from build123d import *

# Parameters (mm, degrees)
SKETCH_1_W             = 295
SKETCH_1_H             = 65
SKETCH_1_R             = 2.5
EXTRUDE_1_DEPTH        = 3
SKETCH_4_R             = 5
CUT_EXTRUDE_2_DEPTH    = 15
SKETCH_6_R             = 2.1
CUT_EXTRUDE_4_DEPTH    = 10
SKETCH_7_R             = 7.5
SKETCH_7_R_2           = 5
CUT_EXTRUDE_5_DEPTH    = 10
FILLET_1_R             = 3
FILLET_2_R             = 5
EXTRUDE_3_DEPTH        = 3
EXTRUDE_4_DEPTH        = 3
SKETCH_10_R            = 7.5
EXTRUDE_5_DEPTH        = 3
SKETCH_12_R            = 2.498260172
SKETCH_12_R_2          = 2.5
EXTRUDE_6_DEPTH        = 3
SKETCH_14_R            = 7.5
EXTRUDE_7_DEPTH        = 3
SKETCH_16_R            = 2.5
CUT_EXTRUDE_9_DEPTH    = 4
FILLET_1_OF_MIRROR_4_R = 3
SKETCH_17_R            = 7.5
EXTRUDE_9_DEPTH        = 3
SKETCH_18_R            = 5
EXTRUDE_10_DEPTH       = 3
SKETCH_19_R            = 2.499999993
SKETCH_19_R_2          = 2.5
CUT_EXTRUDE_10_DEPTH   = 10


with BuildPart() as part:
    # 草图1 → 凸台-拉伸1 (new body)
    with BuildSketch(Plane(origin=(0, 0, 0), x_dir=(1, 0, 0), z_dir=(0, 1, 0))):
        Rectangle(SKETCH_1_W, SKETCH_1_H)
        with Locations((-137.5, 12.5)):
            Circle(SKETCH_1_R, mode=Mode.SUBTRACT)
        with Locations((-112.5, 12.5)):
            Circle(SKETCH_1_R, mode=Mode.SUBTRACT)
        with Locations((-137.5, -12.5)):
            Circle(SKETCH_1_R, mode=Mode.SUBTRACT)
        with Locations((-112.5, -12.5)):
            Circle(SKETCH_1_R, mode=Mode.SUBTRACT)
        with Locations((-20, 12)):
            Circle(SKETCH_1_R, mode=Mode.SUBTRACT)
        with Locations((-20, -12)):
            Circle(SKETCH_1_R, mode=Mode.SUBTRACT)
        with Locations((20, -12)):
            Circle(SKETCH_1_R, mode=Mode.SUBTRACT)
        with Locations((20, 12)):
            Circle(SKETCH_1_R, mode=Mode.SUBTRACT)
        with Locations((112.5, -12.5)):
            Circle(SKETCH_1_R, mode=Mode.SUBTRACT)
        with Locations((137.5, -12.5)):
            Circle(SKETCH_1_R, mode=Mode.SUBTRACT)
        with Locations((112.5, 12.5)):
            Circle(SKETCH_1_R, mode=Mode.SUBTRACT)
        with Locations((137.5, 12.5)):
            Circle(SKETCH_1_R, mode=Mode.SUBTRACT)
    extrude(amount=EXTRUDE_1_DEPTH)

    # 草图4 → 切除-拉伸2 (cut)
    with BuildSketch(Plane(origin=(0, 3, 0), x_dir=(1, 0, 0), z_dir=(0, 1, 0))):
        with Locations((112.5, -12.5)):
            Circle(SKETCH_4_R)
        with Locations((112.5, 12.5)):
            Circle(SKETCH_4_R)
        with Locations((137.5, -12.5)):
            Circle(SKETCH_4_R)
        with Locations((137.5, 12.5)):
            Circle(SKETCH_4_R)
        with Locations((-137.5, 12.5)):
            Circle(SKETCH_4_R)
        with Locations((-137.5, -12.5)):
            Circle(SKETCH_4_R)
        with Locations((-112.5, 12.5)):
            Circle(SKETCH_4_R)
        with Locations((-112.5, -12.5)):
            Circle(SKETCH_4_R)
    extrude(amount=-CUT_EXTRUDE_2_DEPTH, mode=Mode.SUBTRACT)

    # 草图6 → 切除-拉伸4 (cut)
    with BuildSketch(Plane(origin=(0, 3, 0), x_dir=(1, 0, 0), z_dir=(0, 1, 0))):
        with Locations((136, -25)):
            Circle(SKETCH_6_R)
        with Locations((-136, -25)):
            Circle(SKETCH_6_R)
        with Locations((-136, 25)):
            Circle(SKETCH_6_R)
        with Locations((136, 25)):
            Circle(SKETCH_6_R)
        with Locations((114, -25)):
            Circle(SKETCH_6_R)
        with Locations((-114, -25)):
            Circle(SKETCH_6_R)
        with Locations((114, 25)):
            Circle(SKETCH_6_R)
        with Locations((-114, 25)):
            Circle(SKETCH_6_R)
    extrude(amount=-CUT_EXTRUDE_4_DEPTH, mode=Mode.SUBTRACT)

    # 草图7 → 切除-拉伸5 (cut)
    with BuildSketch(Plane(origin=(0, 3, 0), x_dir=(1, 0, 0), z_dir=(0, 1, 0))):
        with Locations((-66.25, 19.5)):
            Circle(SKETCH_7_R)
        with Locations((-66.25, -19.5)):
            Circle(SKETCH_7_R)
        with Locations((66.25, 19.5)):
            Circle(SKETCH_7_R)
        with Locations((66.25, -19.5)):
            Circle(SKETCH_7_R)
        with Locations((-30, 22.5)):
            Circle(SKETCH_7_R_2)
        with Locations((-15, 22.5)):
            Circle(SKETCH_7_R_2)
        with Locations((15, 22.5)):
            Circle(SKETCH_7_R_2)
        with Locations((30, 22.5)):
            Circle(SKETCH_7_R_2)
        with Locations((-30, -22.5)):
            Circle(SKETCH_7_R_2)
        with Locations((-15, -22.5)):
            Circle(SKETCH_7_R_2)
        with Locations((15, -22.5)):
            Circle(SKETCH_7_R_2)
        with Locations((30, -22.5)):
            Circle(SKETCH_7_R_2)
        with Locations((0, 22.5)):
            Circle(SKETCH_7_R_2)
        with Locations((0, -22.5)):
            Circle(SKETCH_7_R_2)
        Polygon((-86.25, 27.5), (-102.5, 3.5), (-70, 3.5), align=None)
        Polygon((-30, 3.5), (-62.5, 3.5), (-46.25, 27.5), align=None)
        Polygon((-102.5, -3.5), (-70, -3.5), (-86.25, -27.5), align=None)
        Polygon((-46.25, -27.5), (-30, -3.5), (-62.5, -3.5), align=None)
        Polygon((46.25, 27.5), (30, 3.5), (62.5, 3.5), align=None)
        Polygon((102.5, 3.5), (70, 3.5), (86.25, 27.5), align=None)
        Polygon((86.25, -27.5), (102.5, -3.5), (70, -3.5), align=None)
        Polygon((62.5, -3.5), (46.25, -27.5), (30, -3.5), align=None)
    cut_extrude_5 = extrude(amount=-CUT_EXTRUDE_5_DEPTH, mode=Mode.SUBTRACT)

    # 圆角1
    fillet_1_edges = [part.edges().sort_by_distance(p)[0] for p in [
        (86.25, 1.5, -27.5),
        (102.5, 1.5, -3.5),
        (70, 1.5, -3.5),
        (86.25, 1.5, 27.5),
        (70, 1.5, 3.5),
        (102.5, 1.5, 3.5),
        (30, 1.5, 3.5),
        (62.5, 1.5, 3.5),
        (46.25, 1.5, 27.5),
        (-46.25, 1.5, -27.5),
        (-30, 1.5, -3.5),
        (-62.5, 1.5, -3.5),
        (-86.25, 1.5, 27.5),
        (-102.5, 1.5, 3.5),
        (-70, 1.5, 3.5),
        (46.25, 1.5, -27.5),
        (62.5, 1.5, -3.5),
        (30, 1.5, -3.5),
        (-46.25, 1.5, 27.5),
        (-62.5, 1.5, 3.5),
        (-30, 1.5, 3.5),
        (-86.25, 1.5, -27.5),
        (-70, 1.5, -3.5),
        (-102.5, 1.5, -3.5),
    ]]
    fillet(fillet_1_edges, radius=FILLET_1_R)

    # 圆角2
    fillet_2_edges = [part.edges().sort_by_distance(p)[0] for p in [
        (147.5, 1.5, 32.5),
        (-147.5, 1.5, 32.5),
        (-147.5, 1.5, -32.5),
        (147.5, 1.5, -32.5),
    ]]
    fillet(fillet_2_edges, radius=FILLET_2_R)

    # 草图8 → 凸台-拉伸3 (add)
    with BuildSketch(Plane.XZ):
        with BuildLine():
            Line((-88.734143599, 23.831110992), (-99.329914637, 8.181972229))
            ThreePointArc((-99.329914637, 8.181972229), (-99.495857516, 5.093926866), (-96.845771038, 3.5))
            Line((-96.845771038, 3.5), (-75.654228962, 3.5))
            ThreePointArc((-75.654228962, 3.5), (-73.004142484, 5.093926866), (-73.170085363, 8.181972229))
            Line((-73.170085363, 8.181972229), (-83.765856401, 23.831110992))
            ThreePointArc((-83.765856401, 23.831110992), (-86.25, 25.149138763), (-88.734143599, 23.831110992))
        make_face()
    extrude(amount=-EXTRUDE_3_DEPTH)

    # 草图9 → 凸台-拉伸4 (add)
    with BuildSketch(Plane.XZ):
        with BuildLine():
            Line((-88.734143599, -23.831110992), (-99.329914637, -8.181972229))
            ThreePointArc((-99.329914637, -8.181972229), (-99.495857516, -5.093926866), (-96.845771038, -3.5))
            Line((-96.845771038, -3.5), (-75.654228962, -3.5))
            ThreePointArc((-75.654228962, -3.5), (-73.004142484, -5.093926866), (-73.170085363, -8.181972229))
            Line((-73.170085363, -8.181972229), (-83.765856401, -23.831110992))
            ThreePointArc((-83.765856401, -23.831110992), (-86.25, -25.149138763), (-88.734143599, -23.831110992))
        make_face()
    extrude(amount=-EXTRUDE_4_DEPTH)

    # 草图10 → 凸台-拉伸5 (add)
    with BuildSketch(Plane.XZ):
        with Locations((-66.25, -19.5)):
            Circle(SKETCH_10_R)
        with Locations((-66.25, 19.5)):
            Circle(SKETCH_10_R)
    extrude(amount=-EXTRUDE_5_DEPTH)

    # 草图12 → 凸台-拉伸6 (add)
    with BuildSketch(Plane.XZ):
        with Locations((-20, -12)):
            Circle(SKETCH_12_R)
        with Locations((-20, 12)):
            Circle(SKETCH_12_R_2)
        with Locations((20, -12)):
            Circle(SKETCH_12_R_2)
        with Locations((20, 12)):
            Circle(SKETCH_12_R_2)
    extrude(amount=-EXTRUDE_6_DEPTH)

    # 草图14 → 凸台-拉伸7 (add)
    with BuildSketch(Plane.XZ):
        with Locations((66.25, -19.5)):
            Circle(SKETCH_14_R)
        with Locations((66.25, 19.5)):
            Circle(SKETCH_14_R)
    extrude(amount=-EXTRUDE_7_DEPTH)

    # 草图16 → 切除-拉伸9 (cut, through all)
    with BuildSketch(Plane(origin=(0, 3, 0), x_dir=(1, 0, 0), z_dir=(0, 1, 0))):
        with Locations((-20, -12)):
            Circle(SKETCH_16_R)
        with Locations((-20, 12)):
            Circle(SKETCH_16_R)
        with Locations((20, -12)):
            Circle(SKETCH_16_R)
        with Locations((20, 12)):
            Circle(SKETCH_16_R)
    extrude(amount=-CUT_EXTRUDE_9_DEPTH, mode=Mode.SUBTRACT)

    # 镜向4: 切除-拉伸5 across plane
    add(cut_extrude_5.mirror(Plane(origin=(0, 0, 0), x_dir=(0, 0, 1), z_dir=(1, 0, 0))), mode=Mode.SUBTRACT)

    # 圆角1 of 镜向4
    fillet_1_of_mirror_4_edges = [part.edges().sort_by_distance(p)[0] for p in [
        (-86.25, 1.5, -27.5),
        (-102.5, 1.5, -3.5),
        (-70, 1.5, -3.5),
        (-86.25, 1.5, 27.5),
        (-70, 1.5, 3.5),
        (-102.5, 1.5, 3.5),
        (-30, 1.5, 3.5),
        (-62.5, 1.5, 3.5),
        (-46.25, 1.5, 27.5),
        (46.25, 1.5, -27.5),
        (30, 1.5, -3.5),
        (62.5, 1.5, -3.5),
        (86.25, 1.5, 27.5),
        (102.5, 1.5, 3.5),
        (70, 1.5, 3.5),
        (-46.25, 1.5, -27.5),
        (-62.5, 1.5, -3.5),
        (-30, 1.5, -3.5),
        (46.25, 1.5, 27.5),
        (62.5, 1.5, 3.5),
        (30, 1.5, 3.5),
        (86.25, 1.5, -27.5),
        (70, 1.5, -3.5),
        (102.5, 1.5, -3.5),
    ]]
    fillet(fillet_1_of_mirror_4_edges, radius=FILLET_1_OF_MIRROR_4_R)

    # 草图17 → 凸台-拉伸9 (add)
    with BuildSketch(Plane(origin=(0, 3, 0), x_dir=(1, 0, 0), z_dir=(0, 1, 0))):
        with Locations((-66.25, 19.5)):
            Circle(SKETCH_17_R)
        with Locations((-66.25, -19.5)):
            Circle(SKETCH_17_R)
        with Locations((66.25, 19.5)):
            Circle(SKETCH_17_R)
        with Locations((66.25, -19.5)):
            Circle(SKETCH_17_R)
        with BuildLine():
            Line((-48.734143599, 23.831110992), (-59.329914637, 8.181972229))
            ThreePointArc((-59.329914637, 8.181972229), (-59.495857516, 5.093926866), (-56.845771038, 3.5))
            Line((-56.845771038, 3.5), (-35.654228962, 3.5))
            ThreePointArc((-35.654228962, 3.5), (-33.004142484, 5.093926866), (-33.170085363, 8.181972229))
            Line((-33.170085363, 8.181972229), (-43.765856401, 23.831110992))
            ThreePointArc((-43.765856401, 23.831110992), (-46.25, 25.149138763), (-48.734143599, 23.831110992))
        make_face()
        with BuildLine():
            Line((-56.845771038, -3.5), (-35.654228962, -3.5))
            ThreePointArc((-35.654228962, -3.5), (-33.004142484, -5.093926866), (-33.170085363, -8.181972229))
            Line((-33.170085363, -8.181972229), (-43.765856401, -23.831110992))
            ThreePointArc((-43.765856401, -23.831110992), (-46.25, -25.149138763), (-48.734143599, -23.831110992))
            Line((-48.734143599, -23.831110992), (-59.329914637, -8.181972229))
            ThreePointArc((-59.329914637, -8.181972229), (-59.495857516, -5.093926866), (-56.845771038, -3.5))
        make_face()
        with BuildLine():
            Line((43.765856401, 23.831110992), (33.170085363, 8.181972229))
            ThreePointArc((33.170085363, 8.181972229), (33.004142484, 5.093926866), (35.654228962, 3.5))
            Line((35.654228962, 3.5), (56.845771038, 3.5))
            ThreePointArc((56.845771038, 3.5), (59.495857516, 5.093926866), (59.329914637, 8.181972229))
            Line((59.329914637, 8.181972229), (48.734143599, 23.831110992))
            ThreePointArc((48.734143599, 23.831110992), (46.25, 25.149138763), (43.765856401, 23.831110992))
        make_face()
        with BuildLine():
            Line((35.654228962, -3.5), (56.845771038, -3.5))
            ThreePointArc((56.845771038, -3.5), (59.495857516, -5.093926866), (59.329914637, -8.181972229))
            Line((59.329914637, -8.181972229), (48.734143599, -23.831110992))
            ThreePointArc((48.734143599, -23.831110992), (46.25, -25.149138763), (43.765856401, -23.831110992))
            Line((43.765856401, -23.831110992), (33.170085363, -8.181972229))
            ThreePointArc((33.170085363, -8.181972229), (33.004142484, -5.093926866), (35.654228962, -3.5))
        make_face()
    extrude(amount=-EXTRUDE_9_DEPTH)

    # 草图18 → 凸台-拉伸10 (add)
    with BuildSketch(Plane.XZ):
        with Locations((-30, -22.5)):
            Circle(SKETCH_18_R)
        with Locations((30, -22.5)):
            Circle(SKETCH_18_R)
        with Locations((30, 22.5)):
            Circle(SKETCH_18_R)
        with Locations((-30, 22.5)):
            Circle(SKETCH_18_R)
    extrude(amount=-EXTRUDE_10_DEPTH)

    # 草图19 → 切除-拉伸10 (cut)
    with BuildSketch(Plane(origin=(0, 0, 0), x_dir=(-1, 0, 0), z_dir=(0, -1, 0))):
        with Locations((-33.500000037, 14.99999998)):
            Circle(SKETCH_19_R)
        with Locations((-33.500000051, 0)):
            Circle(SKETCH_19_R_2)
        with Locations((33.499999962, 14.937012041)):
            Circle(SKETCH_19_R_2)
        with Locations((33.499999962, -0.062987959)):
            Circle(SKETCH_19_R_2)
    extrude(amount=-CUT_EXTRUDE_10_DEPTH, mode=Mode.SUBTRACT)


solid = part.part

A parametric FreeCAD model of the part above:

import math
import FreeCAD as App
import Part
import Sketcher

V = App.Vector


def edges_at(feature, points):
    """Names of the edges that pass closest to the given points."""
    edges = feature.Shape.Edges
    near = lambda p: min(range(len(edges)), key=lambda i: edges[i].distToShape(Part.Vertex(*p))[0])
    return sorted({f"Edge{near(p) + 1}" for p in points})


def add_polygon(sketch, points):
    """Adds a closed chain of lines whose ends are joined by coincident constraints."""
    first, n = sketch.GeometryCount, len(points)
    for a, b in zip(points, points[1:] + points[:1]):
        sketch.addGeometry(Part.LineSegment(App.Vector(*a, 0), App.Vector(*b, 0)), False)
    for i in range(n):
        sketch.addConstraint(Sketcher.Constraint("Coincident", first + i, 2, first + (i + 1) % n, 1))

doc = App.newDocument("Part")
body = doc.addObject("PartDesign::Body", "Body")
body.AllowCompound = True

sketch1 = doc.addObject("Sketcher::SketchObject", "Sketch")
body.addObject(sketch1)
sketch1.AttachmentSupport = (doc.XZ_Plane, [""])
sketch1.MapMode = "FlatFace"
add_polygon(sketch1, [(-147.5, -32.5), (-147.5, 32.5), (147.5, 32.5), (147.5, -32.5)])
sketch1.addGeometry(Part.Circle(V(-137.5, 12.5, 0), V(0, 0, 1), 2.5), False)
sketch1.addGeometry(Part.Circle(V(-112.5, 12.5, 0), V(0, 0, 1), 2.5), False)
sketch1.addGeometry(Part.Circle(V(-20, 12, 0), V(0, 0, 1), 2.5), False)
sketch1.addGeometry(Part.Circle(V(20, 12, 0), V(0, 0, 1), 2.5), False)
sketch1.addGeometry(Part.Circle(V(112.5, 12.5, 0), V(0, 0, 1), 2.5), False)
sketch1.addGeometry(Part.Circle(V(137.5, 12.5, 0), V(0, 0, 1), 2.5), False)
sketch1.addGeometry(Part.Circle(V(-137.5, -12.5, 0), V(0, 0, 1), 2.5), False)
sketch1.addGeometry(Part.Circle(V(-112.5, -12.5, 0), V(0, 0, 1), 2.5), False)
sketch1.addGeometry(Part.Circle(V(-20, -12, 0), V(0, 0, 1), 2.5), False)
sketch1.addGeometry(Part.Circle(V(20, -12, 0), V(0, 0, 1), 2.5), False)
sketch1.addGeometry(Part.Circle(V(112.5, -12.5, 0), V(0, 0, 1), 2.5), False)
sketch1.addGeometry(Part.Circle(V(137.5, -12.5, 0), V(0, 0, 1), 2.5), False)
sketch1.addConstraint([
    Sketcher.Constraint("Vertical", 0),
    Sketcher.Constraint("Horizontal", 1),
    Sketcher.Constraint("Vertical", 2),
    Sketcher.Constraint("Horizontal", 3),
    Sketcher.Constraint("Equal", 4, 5),
    Sketcher.Constraint("Equal", 5, 6),
    Sketcher.Constraint("Equal", 6, 7),
    Sketcher.Constraint("Equal", 7, 8),
    Sketcher.Constraint("Equal", 8, 9),
    Sketcher.Constraint("Equal", 9, 10),
    Sketcher.Constraint("Equal", 10, 11),
    Sketcher.Constraint("Equal", 11, 12),
    Sketcher.Constraint("Equal", 12, 13),
    Sketcher.Constraint("Equal", 13, 14),
    Sketcher.Constraint("Equal", 14, 15),
    Sketcher.Constraint("Symmetric", 9, 3, 10, 3, -1, 1),
    Sketcher.Constraint("Symmetric", 8, 3, 11, 3, -1, 1),
    Sketcher.Constraint("Symmetric", 7, 3, 12, 3, -1, 1),
    Sketcher.Constraint("Symmetric", 6, 3, 13, 3, -1, 1),
    Sketcher.Constraint("Symmetric", 5, 3, 14, 3, -1, 1),
    Sketcher.Constraint("Symmetric", 4, 3, 15, 3, -1, 1),
    Sketcher.Constraint("Symmetric", 0, 2, 2, 2, -1, 1),
    Sketcher.Constraint("Symmetric", 6, 3, 7, 3, -2),
    Sketcher.Constraint("Symmetric", 5, 3, 8, 3, -2),
    Sketcher.Constraint("Symmetric", 4, 3, 9, 3, -2),
    Sketcher.Constraint("Horizontal", 4, 3, 5, 3),
    Sketcher.Constraint("Diameter", 4, 5.0),
    Sketcher.Constraint("DistanceX", 1, 1, 1, 2, 295.0),
    Sketcher.Constraint("DistanceY", 0, 1, 0, 2, 65.0),
    Sketcher.Constraint("DistanceX", 6, 3, -1, 1, 20.0),
    Sketcher.Constraint("DistanceY", -1, 1, 6, 3, 12.0),
    Sketcher.Constraint("DistanceX", 4, 3, 5, 3, 25.0),
    Sketcher.Constraint("DistanceX", 5, 3, 8, 3, 225.0),
    Sketcher.Constraint("DistanceY", 10, 3, 4, 3, 25.0),
])
pad1 = doc.addObject("PartDesign::Pad", "Pad")
body.addObject(pad1)
pad1.Profile = sketch1
pad1.Length = 3
pad1.Reversed = True

sketch2 = doc.addObject("Sketcher::SketchObject", "Sketch001")
body.addObject(sketch2)
sketch2.AttachmentSupport = (doc.XZ_Plane, [""])
sketch2.MapMode = "FlatFace"
sketch2.AttachmentOffset = App.Placement(V(0, 0, -3), App.Rotation())
sketch2.addGeometry([
    Part.Circle(V(112, 12, 0), V(0, 0, 1), 5),
    Part.Circle(V(112, -12, 0), V(0, 0, 1), 5),
    Part.Circle(V(138, 12, 0), V(0, 0, 1), 5),
    Part.Circle(V(138, -12, 0), V(0, 0, 1), 5),
    Part.Circle(V(-138, -12, 0), V(0, 0, 1), 5),
    Part.Circle(V(-138, 12, 0), V(0, 0, 1), 5),
    Part.Circle(V(-112, -12, 0), V(0, 0, 1), 5),
    Part.Circle(V(-112, 12, 0), V(0, 0, 1), 5),
], False)
sketch2.addConstraint([
    Sketcher.Constraint("Equal", 0, 1),
    Sketcher.Constraint("Equal", 1, 2),
    Sketcher.Constraint("Equal", 2, 3),
    Sketcher.Constraint("Equal", 3, 4),
    Sketcher.Constraint("Equal", 4, 5),
    Sketcher.Constraint("Equal", 5, 6),
    Sketcher.Constraint("Equal", 6, 7),
    Sketcher.Constraint("Symmetric", 2, 3, 4, 3, -1, 1),
    Sketcher.Constraint("Symmetric", 3, 3, 5, 3, -1, 1),
    Sketcher.Constraint("Symmetric", 0, 3, 6, 3, -1, 1),
    Sketcher.Constraint("Symmetric", 1, 3, 7, 3, -1, 1),
    Sketcher.Constraint("Symmetric", 3, 3, 4, 3, -2),
    Sketcher.Constraint("Symmetric", 1, 3, 6, 3, -2),
    Sketcher.Constraint("Horizontal", 0, 3, 2, 3),
    Sketcher.Constraint("Diameter", 0, 10.0),
    Sketcher.Constraint("DistanceY", 1, 3, 0, 3, 25.0),
    Sketcher.Constraint("DistanceX", 0, 3, 2, 3, 25.0),
    Sketcher.Constraint("DistanceX", 4, 3, 1, 3, 250.0),
])
pocket1 = doc.addObject("PartDesign::Pocket", "Pocket")
body.addObject(pocket1)
pocket1.Profile = sketch2
pocket1.Length = 15
pocket1.Reversed = True

sketch3 = doc.addObject("Sketcher::SketchObject", "Sketch002")
body.addObject(sketch3)
sketch3.AttachmentSupport = (doc.XZ_Plane, [""])
sketch3.MapMode = "FlatFace"
sketch3.AttachmentOffset = App.Placement(V(0, 0, -3), App.Rotation())
sketch3.addGeometry([
    Part.Circle(V(136, 25, 0), V(0, 0, 1), 2.1),
    Part.Circle(V(-136, 25, 0), V(0, 0, 1), 2.1),
    Part.Circle(V(-136, -25, 0), V(0, 0, 1), 2.1),
    Part.Circle(V(136, -25, 0), V(0, 0, 1), 2.1),
    Part.Circle(V(114, 25, 0), V(0, 0, 1), 2.1),
    Part.Circle(V(-114, 25, 0), V(0, 0, 1), 2.1),
    Part.Circle(V(114, -25, 0), V(0, 0, 1), 2.1),
    Part.Circle(V(-114, -25, 0), V(0, 0, 1), 2.1),
], False)
sketch3.addConstraint([
    Sketcher.Constraint("Equal", 0, 1),
    Sketcher.Constraint("Equal", 1, 2),
    Sketcher.Constraint("Equal", 2, 3),
    Sketcher.Constraint("Equal", 3, 4),
    Sketcher.Constraint("Equal", 4, 5),
    Sketcher.Constraint("Equal", 5, 6),
    Sketcher.Constraint("Equal", 6, 7),
    Sketcher.Constraint("Symmetric", 0, 3, 2, 3, -1, 1),
    Sketcher.Constraint("Symmetric", 1, 3, 3, 3, -1, 1),
    Sketcher.Constraint("Symmetric", 5, 3, 6, 3, -1, 1),
    Sketcher.Constraint("Symmetric", 4, 3, 7, 3, -1, 1),
    Sketcher.Constraint("Symmetric", 0, 3, 1, 3, -2),
    Sketcher.Constraint("Symmetric", 4, 3, 5, 3, -2),
    Sketcher.Constraint("Horizontal", 1, 3, 4, 3),
    Sketcher.Constraint("Diameter", 0, 4.2),
    Sketcher.Constraint("DistanceX", -1, 1, 0, 3, 136.0),
    Sketcher.Constraint("DistanceY", -1, 1, 0, 3, 25.0),
    Sketcher.Constraint("DistanceX", -1, 1, 4, 3, 114.0),
])
pocket2 = doc.addObject("PartDesign::Pocket", "Pocket001")
body.addObject(pocket2)
pocket2.Profile = sketch3
pocket2.Length = 10
pocket2.Reversed = True

sketch4 = doc.addObject("Sketcher::SketchObject", "Sketch003")
body.addObject(sketch4)
sketch4.AttachmentSupport = (doc.XZ_Plane, [""])
sketch4.MapMode = "FlatFace"
sketch4.AttachmentOffset = App.Placement(V(0, 0, -3), App.Rotation())
sketch4.addGeometry(Part.Circle(V(-66, -20, 0), V(0, 0, 1), 8), False)
sketch4.addGeometry(Part.Circle(V(-66, 20, 0), V(0, 0, 1), 8), False)
sketch4.addGeometry(Part.Circle(V(66, -20, 0), V(0, 0, 1), 8), False)
sketch4.addGeometry(Part.Circle(V(66, 20, 0), V(0, 0, 1), 8), False)
sketch4.addGeometry(Part.Circle(V(-30, -22, 0), V(0, 0, 1), 5), False)
sketch4.addGeometry(Part.Circle(V(-15, -22, 0), V(0, 0, 1), 5), False)
sketch4.addGeometry(Part.Circle(V(15, -22, 0), V(0, 0, 1), 5), False)
sketch4.addGeometry(Part.Circle(V(30, -22, 0), V(0, 0, 1), 5), False)
sketch4.addGeometry(Part.Circle(V(-30, 22, 0), V(0, 0, 1), 5), False)
sketch4.addGeometry(Part.Circle(V(-15, 22, 0), V(0, 0, 1), 5), False)
sketch4.addGeometry(Part.Circle(V(15, 22, 0), V(0, 0, 1), 5), False)
sketch4.addGeometry(Part.Circle(V(30, 22, 0), V(0, 0, 1), 5), False)
sketch4.addGeometry(Part.Circle(V(0, -22, 0), V(0, 0, 1), 5), False)
sketch4.addGeometry(Part.Circle(V(0, 22, 0), V(0, 0, 1), 5), False)
add_polygon(sketch4, [(-86, -28), (-102, -4), (-70, -4)])
add_polygon(sketch4, [(-62, -4), (-30, -4), (-46, -28)])
add_polygon(sketch4, [(-70, 4), (-102, 4), (-86, 28)])
add_polygon(sketch4, [(-46, 28), (-30, 4), (-62, 4)])
add_polygon(sketch4, [(46, -28), (30, -4), (62, -4)])
add_polygon(sketch4, [(70, -4), (102, -4), (86, -28)])
add_polygon(sketch4, [(86, 28), (102, 4), (70, 4)])
add_polygon(sketch4, [(46, 28), (62, 4), (30, 4)])
sketch4.addConstraint([
    Sketcher.Constraint("Horizontal", 15),
    Sketcher.Constraint("Horizontal", 17),
    Sketcher.Constraint("Horizontal", 20),
    Sketcher.Constraint("Horizontal", 24),
    Sketcher.Constraint("Horizontal", 27),
    Sketcher.Constraint("Horizontal", 29),
    Sketcher.Constraint("Horizontal", 33),
    Sketcher.Constraint("Horizontal", 36),
    Sketcher.Constraint("Equal", 0, 1),
    Sketcher.Constraint("Equal", 1, 2),
    Sketcher.Constraint("Equal", 2, 3),
    Sketcher.Constraint("Equal", 4, 5),
    Sketcher.Constraint("Equal", 5, 6),
    Sketcher.Constraint("Equal", 6, 7),
    Sketcher.Constraint("Equal", 7, 8),
    Sketcher.Constraint("Equal", 8, 9),
    Sketcher.Constraint("Equal", 9, 10),
    Sketcher.Constraint("Equal", 10, 11),
    Sketcher.Constraint("Equal", 11, 12),
    Sketcher.Constraint("Equal", 12, 13),
    Sketcher.Constraint("Symmetric", 1, 3, 2, 3, -1, 1),
    Sketcher.Constraint("Symmetric", 0, 3, 3, 3, -1, 1),
    Sketcher.Constraint("Symmetric", 7, 3, 8, 3, -1, 1),
    Sketcher.Constraint("Symmetric", 6, 3, 9, 3, -1, 1),
    Sketcher.Constraint("Symmetric", 5, 3, 10, 3, -1, 1),
    Sketcher.Constraint("Symmetric", 4, 3, 11, 3, -1, 1),
    Sketcher.Constraint("Symmetric", 12, 3, 13, 3, -1, 1),
    Sketcher.Constraint("Symmetric", 23, 2, 26, 2, -1, 1),
    Sketcher.Constraint("Symmetric", 25, 2, 28, 2, -1, 1),
    Sketcher.Constraint("Symmetric", 20, 2, 29, 2, -1, 1),
    Sketcher.Constraint("Symmetric", 21, 2, 30, 2, -1, 1),
    Sketcher.Constraint("Symmetric", 14, 2, 32, 2, -1, 1),
    Sketcher.Constraint("Symmetric", 16, 2, 34, 2, -1, 1),
    Sketcher.Constraint("Symmetric", 19, 2, 35, 2, -1, 1),
    Sketcher.Constraint("Symmetric", 18, 2, 37, 2, -1, 1),
    Sketcher.Constraint("Symmetric", 0, 3, 2, 3, -2),
    Sketcher.Constraint("Symmetric", 5, 3, 6, 3, -2),
    Sketcher.Constraint("Symmetric", 4, 3, 7, 3, -2),
    Sketcher.Constraint("Symmetric", 17, 2, 26, 2, -2),
    Sketcher.Constraint("Symmetric", 18, 2, 28, 2, -2),
    Sketcher.Constraint("Symmetric", 14, 2, 29, 2, -2),
    Sketcher.Constraint("Symmetric", 16, 2, 30, 2, -2),
    Sketcher.Constraint("PointOnObject", 12, 3, -2),
    Sketcher.Constraint("Parallel", 16, 18),
    Sketcher.Constraint("Parallel", 14, 19),
    Sketcher.Constraint("Parallel", 18, 21),
    Sketcher.Constraint("Parallel", 19, 22),
    Sketcher.Constraint("Parallel", 21, 25),
    Sketcher.Constraint("Parallel", 25, 28),
    Sketcher.Constraint("Parallel", 26, 31),
    Sketcher.Constraint("Parallel", 30, 34),
    Sketcher.Constraint("Parallel", 34, 37),
    Sketcher.Constraint("Horizontal", 4, 3, 5, 3),
    Sketcher.Constraint("Horizontal", 7, 3, 12, 3),
    Sketcher.Constraint("Horizontal", 15, 2, 17, 2),
    Sketcher.Constraint("Horizontal", 16, 2, 18, 2),
    Sketcher.Constraint("Vertical", 8, 3, 17, 2),
    Sketcher.Constraint("Diameter", 0, 15.0),
    Sketcher.Constraint("Diameter", 4, 10.0),
    Sketcher.Constraint("DistanceX", 15, 1, 15, 2, 32.5),
    Sketcher.Constraint("DistanceX", 4, 3, -1, 1, 30.0),
    Sketcher.Constraint("DistanceX", 5, 3, -1, 1, 15.0),
    Sketcher.Constraint("DistanceX", 15, 2, -1, 1, 70.0),
    Sketcher.Constraint("DistanceY", 0, 3, 1, 3, 39.0),
    Sketcher.Constraint("DistanceY", 4, 3, 0, 3, 3.0),
    Sketcher.Constraint("DistanceY", 0, 3, 14, 2, 16.0),
    Sketcher.Constraint("DistanceX", 16, 2, 0, 3, 20.0),
    Sketcher.Constraint("DistanceY", 16, 2, 0, 3, 8.0),
])
pocket3 = doc.addObject("PartDesign::Pocket", "Pocket002")
body.addObject(pocket3)
pocket3.Profile = sketch4
pocket3.Length = 10
pocket3.Reversed = True
doc.recompute()

fillet = doc.addObject("PartDesign::Fillet", "Fillet")
body.addObject(fillet)
fillet.Base = (pocket3, edges_at(pocket3, [
    (86.25, 1.5, -27.5),
    (102.5, 1.5, -3.5),
    (70, 1.5, -3.5),
    (86.25, 1.5, 27.5),
    (70, 1.5, 3.5),
    (102.5, 1.5, 3.5),
    (30, 1.5, 3.5),
    (62.5, 1.5, 3.5),
    (46.25, 1.5, 27.5),
    (-46.25, 1.5, -27.5),
    (-30, 1.5, -3.5),
    (-62.5, 1.5, -3.5),
    (-86.25, 1.5, 27.5),
    (-102.5, 1.5, 3.5),
    (-70, 1.5, 3.5),
    (46.25, 1.5, -27.5),
    (62.5, 1.5, -3.5),
    (30, 1.5, -3.5),
    (-46.25, 1.5, 27.5),
    (-62.5, 1.5, 3.5),
    (-30, 1.5, 3.5),
    (-86.25, 1.5, -27.5),
    (-70, 1.5, -3.5),
    (-102.5, 1.5, -3.5),
]))
fillet.Radius = 3
doc.recompute()

fillet2 = doc.addObject("PartDesign::Fillet", "Fillet001")
body.addObject(fillet2)
fillet2.Base = (fillet, edges_at(fillet, [
    (147.5, 1.5, 32.5),
    (-147.5, 1.5, 32.5),
    (-147.5, 1.5, -32.5),
    (147.5, 1.5, -32.5),
]))
fillet2.Radius = 5

sketch5 = doc.addObject("Sketcher::SketchObject", "Sketch004")
body.addObject(sketch5)
sketch5.AttachmentSupport = (doc.XZ_Plane, [""])
sketch5.MapMode = "FlatFace"
sketch5.addGeometry([
    Part.LineSegment(V(-88.7, 23.8, 0), V(-99.3, 8.2, 0)),
    Part.ArcOfCircle(Part.Circle(V(-96.8, 6.5, 0), V(0, 0, 1), 3), math.radians(146), math.radians(270)),
    Part.LineSegment(V(-96.8, 3.5, 0), V(-75.7, 3.5, 0)),
    Part.ArcOfCircle(Part.Circle(V(-75.7, 6.5, 0), V(0, 0, 1), 3), math.radians(-90), math.radians(34)),
    Part.LineSegment(V(-73.2, 8.2, 0), V(-83.8, 23.8, 0)),
    Part.ArcOfCircle(Part.Circle(V(-86.2, 22.1, 0), V(0, 0, 1), 3), math.radians(34), math.radians(146)),
], False)
sketch5.addConstraint([
    Sketcher.Constraint("Tangent", 0, 2, 1, 1),
    Sketcher.Constraint("Tangent", 1, 2, 2, 1),
    Sketcher.Constraint("Tangent", 2, 2, 3, 1),
    Sketcher.Constraint("Tangent", 3, 2, 4, 1),
    Sketcher.Constraint("Tangent", 4, 2, 5, 1),
    Sketcher.Constraint("Tangent", 5, 2, 0, 1),
    Sketcher.Constraint("Horizontal", 2),
    Sketcher.Constraint("Equal", 1, 3),
    Sketcher.Constraint("Equal", 3, 5),
    Sketcher.Constraint("Horizontal", 0, 2, 3, 2),
    Sketcher.Constraint("Radius", 1, 3.0),
    Sketcher.Constraint("DistanceY", -1, 1, 1, 3, 6.5),
    Sketcher.Constraint("DistanceX", 5, 3, -1, 1, 86.25),
    Sketcher.Constraint("DistanceX", 2, 1, 2, 2, 21.191542),
    Sketcher.Constraint("DistanceY", -1, 1, 5, 3, 22.149139),
])
pad2 = doc.addObject("PartDesign::Pad", "Pad001")
body.addObject(pad2)
pad2.Profile = sketch5
pad2.Length = 3
pad2.Reversed = True

sketch6 = doc.addObject("Sketcher::SketchObject", "Sketch005")
body.addObject(sketch6)
sketch6.AttachmentSupport = (doc.XZ_Plane, [""])
sketch6.MapMode = "FlatFace"
sketch6.addGeometry([
    Part.LineSegment(V(-99.3, -8.2, 0), V(-88.7, -23.8, 0)),
    Part.ArcOfCircle(Part.Circle(V(-86.2, -22.1, 0), V(0, 0, 1), 3), math.radians(-146), math.radians(-34)),
    Part.LineSegment(V(-83.8, -23.8, 0), V(-73.2, -8.2, 0)),
    Part.ArcOfCircle(Part.Circle(V(-75.7, -6.5, 0), V(0, 0, 1), 3), math.radians(-34), math.radians(90)),
    Part.LineSegment(V(-75.7, -3.5, 0), V(-96.8, -3.5, 0)),
    Part.ArcOfCircle(Part.Circle(V(-96.8, -6.5, 0), V(0, 0, 1), 3), math.radians(90), math.radians(214)),
], False)
sketch6.addConstraint([
    Sketcher.Constraint("Tangent", 0, 2, 1, 1),
    Sketcher.Constraint("Tangent", 1, 2, 2, 1),
    Sketcher.Constraint("Tangent", 2, 2, 3, 1),
    Sketcher.Constraint("Tangent", 3, 2, 4, 1),
    Sketcher.Constraint("Tangent", 4, 2, 5, 1),
    Sketcher.Constraint("Tangent", 5, 2, 0, 1),
    Sketcher.Constraint("Horizontal", 4),
    Sketcher.Constraint("Equal", 1, 3),
    Sketcher.Constraint("Equal", 3, 5),
    Sketcher.Constraint("Horizontal", 0, 2, 1, 2),
    Sketcher.Constraint("Radius", 1, 3.0),
    Sketcher.Constraint("DistanceY", 3, 3, -1, 1, 6.5),
    Sketcher.Constraint("DistanceX", 1, 3, -1, 1, 86.25),
    Sketcher.Constraint("DistanceX", 4, 2, 4, 1, 21.191542),
    Sketcher.Constraint("DistanceY", 1, 3, -1, 1, 22.149139),
])
pad3 = doc.addObject("PartDesign::Pad", "Pad002")
body.addObject(pad3)
pad3.Profile = sketch6
pad3.Length = 3
pad3.Reversed = True

sketch7 = doc.addObject("Sketcher::SketchObject", "Sketch006")
body.addObject(sketch7)
sketch7.AttachmentSupport = (doc.XZ_Plane, [""])
sketch7.MapMode = "FlatFace"
sketch7.addGeometry([
    Part.Circle(V(-66, -20, 0), V(0, 0, 1), 8),
    Part.Circle(V(-66, 20, 0), V(0, 0, 1), 8),
], False)
sketch7.addConstraint([
    Sketcher.Constraint("Equal", 0, 1),
    Sketcher.Constraint("Symmetric", 0, 3, 1, 3, -1),
    Sketcher.Constraint("Diameter", 0, 15.0),
    Sketcher.Constraint("DistanceY", 0, 3, 1, 3, 39.0),
    Sketcher.Constraint("DistanceX", 0, 3, -1, 1, 66.25),
])
pad4 = doc.addObject("PartDesign::Pad", "Pad003")
body.addObject(pad4)
pad4.Profile = sketch7
pad4.Length = 3
pad4.Reversed = True

sketch8 = doc.addObject("Sketcher::SketchObject", "Sketch007")
body.addObject(sketch8)
sketch8.AttachmentSupport = (doc.XZ_Plane, [""])
sketch8.MapMode = "FlatFace"
sketch8.addGeometry([
    Part.Circle(V(-20, -12, 0), V(0, 0, 1), 2.5),
    Part.Circle(V(-20, 12, 0), V(0, 0, 1), 2.5),
    Part.Circle(V(20, -12, 0), V(0, 0, 1), 2.5),
    Part.Circle(V(20, 12, 0), V(0, 0, 1), 2.5),
], False)
sketch8.addConstraint([
    Sketcher.Constraint("Equal", 1, 2),
    Sketcher.Constraint("Equal", 2, 3),
    Sketcher.Constraint("Symmetric", 1, 3, 2, 3, -1, 1),
    Sketcher.Constraint("Symmetric", 0, 3, 3, 3, -1, 1),
    Sketcher.Constraint("Symmetric", 0, 3, 2, 3, -2),
    Sketcher.Constraint("Diameter", 1, 5.0),
    Sketcher.Constraint("DistanceX", 0, 3, -1, 1, 20.0),
    Sketcher.Constraint("DistanceY", 0, 3, -1, 1, 12.0),
    Sketcher.Constraint("Diameter", 0, 4.99652),
])
pad5 = doc.addObject("PartDesign::Pad", "Pad004")
body.addObject(pad5)
pad5.Profile = sketch8
pad5.Length = 3
pad5.Reversed = True

sketch9 = doc.addObject("Sketcher::SketchObject", "Sketch008")
body.addObject(sketch9)
sketch9.AttachmentSupport = (doc.XZ_Plane, [""])
sketch9.MapMode = "FlatFace"
sketch9.addGeometry([
    Part.Circle(V(66, -20, 0), V(0, 0, 1), 8),
    Part.Circle(V(66, 20, 0), V(0, 0, 1), 8),
], False)
sketch9.addConstraint([
    Sketcher.Constraint("Equal", 0, 1),
    Sketcher.Constraint("Symmetric", 0, 3, 1, 3, -1),
    Sketcher.Constraint("Diameter", 0, 15.0),
    Sketcher.Constraint("DistanceY", 0, 3, 1, 3, 39.0),
    Sketcher.Constraint("DistanceX", -1, 1, 0, 3, 66.25),
])
pad6 = doc.addObject("PartDesign::Pad", "Pad005")
body.addObject(pad6)
pad6.Profile = sketch9
pad6.Length = 3
pad6.Reversed = True

sketch10 = doc.addObject("Sketcher::SketchObject", "Sketch009")
body.addObject(sketch10)
sketch10.AttachmentSupport = (doc.XZ_Plane, [""])
sketch10.MapMode = "FlatFace"
sketch10.AttachmentOffset = App.Placement(V(0, 0, -3), App.Rotation())
sketch10.addGeometry([
    Part.Circle(V(-20, 12, 0), V(0, 0, 1), 2.5),
    Part.Circle(V(-20, -12, 0), V(0, 0, 1), 2.5),
    Part.Circle(V(20, 12, 0), V(0, 0, 1), 2.5),
    Part.Circle(V(20, -12, 0), V(0, 0, 1), 2.5),
], False)
sketch10.addConstraint([
    Sketcher.Constraint("Equal", 0, 1),
    Sketcher.Constraint("Equal", 1, 2),
    Sketcher.Constraint("Equal", 2, 3),
    Sketcher.Constraint("Symmetric", 1, 3, 2, 3, -1, 1),
    Sketcher.Constraint("Symmetric", 0, 3, 3, 3, -1, 1),
    Sketcher.Constraint("Symmetric", 0, 3, 2, 3, -2),
    Sketcher.Constraint("Diameter", 0, 5.0),
    Sketcher.Constraint("DistanceX", 0, 3, -1, 1, 20.0),
    Sketcher.Constraint("DistanceY", -1, 1, 0, 3, 12.0),
])
pocket4 = doc.addObject("PartDesign::Pocket", "Pocket003")
body.addObject(pocket4)
pocket4.Profile = sketch10
pocket4.Type = "ThroughAll"
pocket4.Reversed = True
doc.recompute()

mirrored = doc.addObject("PartDesign::Mirrored", "Mirrored")
body.addObject(mirrored)
mirrored.Originals = [pocket3]
mirrored.MirrorPlane = (doc.YZ_Plane, [""])
body.Tip = mirrored
doc.recompute()

fillet3 = doc.addObject("PartDesign::Fillet", "Fillet002")
body.addObject(fillet3)
fillet3.Base = (mirrored, edges_at(mirrored, [
    (-86.25, 1.5, -27.5),
    (-102.5, 1.5, -3.5),
    (-70, 1.5, -3.5),
    (-86.25, 1.5, 27.5),
    (-70, 1.5, 3.5),
    (-102.5, 1.5, 3.5),
    (-30, 1.5, 3.5),
    (-62.5, 1.5, 3.5),
    (-46.25, 1.5, 27.5),
    (46.25, 1.5, -27.5),
    (30, 1.5, -3.5),
    (62.5, 1.5, -3.5),
    (86.25, 1.5, 27.5),
    (102.5, 1.5, 3.5),
    (70, 1.5, 3.5),
    (-46.25, 1.5, -27.5),
    (-62.5, 1.5, -3.5),
    (-30, 1.5, -3.5),
    (46.25, 1.5, 27.5),
    (62.5, 1.5, 3.5),
    (30, 1.5, 3.5),
    (86.25, 1.5, -27.5),
    (70, 1.5, -3.5),
    (102.5, 1.5, -3.5),
]))
fillet3.Radius = 3

sketch11 = doc.addObject("Sketcher::SketchObject", "Sketch010")
body.addObject(sketch11)
sketch11.AttachmentSupport = (doc.XZ_Plane, [""])
sketch11.MapMode = "FlatFace"
sketch11.AttachmentOffset = App.Placement(V(0, 0, -3), App.Rotation())
sketch11.addGeometry([
    Part.Circle(V(-66.2, -19.5, 0), V(0, 0, 1), 7.5),
    Part.Circle(V(-66.2, 19.5, 0), V(0, 0, 1), 7.5),
    Part.Circle(V(66.2, -19.5, 0), V(0, 0, 1), 7.5),
    Part.Circle(V(66.2, 19.5, 0), V(0, 0, 1), 7.5),
    Part.LineSegment(V(-48.7, -23.8, 0), V(-59.3, -8.2, 0)),
    Part.ArcOfCircle(Part.Circle(V(-56.8, -6.5, 0), V(0, 0, 1), 3), math.radians(90), math.radians(214)),
    Part.LineSegment(V(-56.8, -3.5, 0), V(-35.7, -3.5, 0)),
    Part.ArcOfCircle(Part.Circle(V(-35.7, -6.5, 0), V(0, 0, 1), 3), math.radians(-34), math.radians(90)),
    Part.LineSegment(V(-33.2, -8.2, 0), V(-43.8, -23.8, 0)),
    Part.ArcOfCircle(Part.Circle(V(-46.2, -22.1, 0), V(0, 0, 1), 3), math.radians(-146), math.radians(-34)),
    Part.LineSegment(V(-35.7, 3.5, 0), V(-56.8, 3.5, 0)),
    Part.ArcOfCircle(Part.Circle(V(-56.8, 6.5, 0), V(0, 0, 1), 3), math.radians(146), math.radians(270)),
    Part.LineSegment(V(-59.3, 8.2, 0), V(-48.7, 23.8, 0)),
    Part.ArcOfCircle(Part.Circle(V(-46.2, 22.1, 0), V(0, 0, 1), 3), math.radians(34), math.radians(146)),
    Part.LineSegment(V(-43.8, 23.8, 0), V(-33.2, 8.2, 0)),
    Part.ArcOfCircle(Part.Circle(V(-35.7, 6.5, 0), V(0, 0, 1), 3), math.radians(-90), math.radians(34)),
    Part.LineSegment(V(43.8, -23.8, 0), V(33.2, -8.2, 0)),
    Part.ArcOfCircle(Part.Circle(V(35.7, -6.5, 0), V(0, 0, 1), 3), math.radians(90), math.radians(214)),
    Part.LineSegment(V(35.7, -3.5, 0), V(56.8, -3.5, 0)),
    Part.ArcOfCircle(Part.Circle(V(56.8, -6.5, 0), V(0, 0, 1), 3), math.radians(-34), math.radians(90)),
    Part.LineSegment(V(59.3, -8.2, 0), V(48.7, -23.8, 0)),
    Part.ArcOfCircle(Part.Circle(V(46.2, -22.1, 0), V(0, 0, 1), 3), math.radians(-146), math.radians(-34)),
    Part.LineSegment(V(56.8, 3.5, 0), V(35.7, 3.5, 0)),
    Part.ArcOfCircle(Part.Circle(V(35.7, 6.5, 0), V(0, 0, 1), 3), math.radians(146), math.radians(270)),
    Part.LineSegment(V(33.2, 8.2, 0), V(43.8, 23.8, 0)),
    Part.ArcOfCircle(Part.Circle(V(46.2, 22.1, 0), V(0, 0, 1), 3), math.radians(34), math.radians(146)),
    Part.LineSegment(V(48.7, 23.8, 0), V(59.3, 8.2, 0)),
    Part.ArcOfCircle(Part.Circle(V(56.8, 6.5, 0), V(0, 0, 1), 3), math.radians(-90), math.radians(34)),
], False)
sketch11.addConstraint([
    Sketcher.Constraint("Tangent", 4, 2, 5, 2),
    Sketcher.Constraint("Tangent", 5, 1, 6, 1),
    Sketcher.Constraint("Tangent", 6, 2, 7, 2),
    Sketcher.Constraint("Tangent", 7, 1, 8, 1),
    Sketcher.Constraint("Tangent", 8, 2, 9, 2),
    Sketcher.Constraint("Tangent", 9, 1, 4, 1),
    Sketcher.Constraint("Tangent", 10, 2, 11, 2),
    Sketcher.Constraint("Tangent", 11, 1, 12, 1),
    Sketcher.Constraint("Tangent", 12, 2, 13, 2),
    Sketcher.Constraint("Tangent", 13, 1, 14, 1),
    Sketcher.Constraint("Tangent", 14, 2, 15, 2),
    Sketcher.Constraint("Tangent", 15, 1, 10, 1),
    Sketcher.Constraint("Tangent", 16, 2, 17, 2),
    Sketcher.Constraint("Tangent", 17, 1, 18, 1),
    Sketcher.Constraint("Tangent", 18, 2, 19, 2),
    Sketcher.Constraint("Tangent", 19, 1, 20, 1),
    Sketcher.Constraint("Tangent", 20, 2, 21, 2),
    Sketcher.Constraint("Tangent", 21, 1, 16, 1),
    Sketcher.Constraint("Tangent", 22, 2, 23, 2),
    Sketcher.Constraint("Tangent", 23, 1, 24, 1),
    Sketcher.Constraint("Tangent", 24, 2, 25, 2),
    Sketcher.Constraint("Tangent", 25, 1, 26, 1),
    Sketcher.Constraint("Tangent", 26, 2, 27, 2),
    Sketcher.Constraint("Tangent", 27, 1, 22, 1),
    Sketcher.Constraint("Horizontal", 6),
    Sketcher.Constraint("Horizontal", 10),
    Sketcher.Constraint("Horizontal", 18),
    Sketcher.Constraint("Horizontal", 22),
    Sketcher.Constraint("Equal", 0, 1),
    Sketcher.Constraint("Equal", 1, 2),
    Sketcher.Constraint("Equal", 2, 3),
    Sketcher.Constraint("Equal", 5, 7),
    Sketcher.Constraint("Equal", 7, 9),
    Sketcher.Constraint("Equal", 9, 11),
    Sketcher.Constraint("Equal", 11, 13),
    Sketcher.Constraint("Equal", 13, 15),
    Sketcher.Constraint("Equal", 15, 17),
    Sketcher.Constraint("Equal", 17, 19),
    Sketcher.Constraint("Equal", 19, 21),
    Sketcher.Constraint("Equal", 21, 23),
    Sketcher.Constraint("Equal", 23, 25),
    Sketcher.Constraint("Equal", 25, 27),
    Sketcher.Constraint("Symmetric", 1, 3, 2, 3, -1, 1),
    Sketcher.Constraint("Symmetric", 0, 3, 3, 3, -1, 1),
    Sketcher.Constraint("Symmetric", 15, 3, 17, 3, -1, 1),
    Sketcher.Constraint("Symmetric", 13, 3, 21, 3, -1, 1),
    Sketcher.Constraint("Symmetric", 7, 3, 23, 3, -1, 1),
    Sketcher.Constraint("Symmetric", 9, 3, 25, 3, -1, 1),
    Sketcher.Constraint("Symmetric", 0, 3, 2, 3, -2),
    Sketcher.Constraint("Symmetric", 7, 3, 17, 3, -2),
    Sketcher.Constraint("Symmetric", 9, 3, 21, 3, -2),
    Sketcher.Constraint("Parallel", 8, 12),
    Sketcher.Constraint("Parallel", 4, 14),
    Sketcher.Constraint("Parallel", 12, 20),
    Sketcher.Constraint("Parallel", 16, 26),
    Sketcher.Constraint("Diameter", 0, 15.0),
    Sketcher.Constraint("Radius", 5, 3.0),
    Sketcher.Constraint("DistanceY", 0, 3, 1, 3, 39.0),
    Sketcher.Constraint("DistanceY", 0, 3, 5, 3, 13.0),
    Sketcher.Constraint("DistanceX", 0, 3, 9, 3, 20.0),
    Sketcher.Constraint("DistanceX", 0, 3, 2, 3, 132.5),
    Sketcher.Constraint("DistanceX", 6, 1, 6, 2, 21.191542),
    Sketcher.Constraint("DistanceY", 9, 3, -1, 1, 22.149139),
])
pad7 = doc.addObject("PartDesign::Pad", "Pad006")
body.addObject(pad7)
pad7.Profile = sketch11
pad7.Length = 3

sketch12 = doc.addObject("Sketcher::SketchObject", "Sketch011")
body.addObject(sketch12)
sketch12.AttachmentSupport = (doc.XZ_Plane, [""])
sketch12.MapMode = "FlatFace"
sketch12.addGeometry([
    Part.Circle(V(-30, -22, 0), V(0, 0, 1), 5),
    Part.Circle(V(30, -22, 0), V(0, 0, 1), 5),
    Part.Circle(V(30, 22, 0), V(0, 0, 1), 5),
    Part.Circle(V(-30, 22, 0), V(0, 0, 1), 5),
], False)
sketch12.addConstraint([
    Sketcher.Constraint("Equal", 0, 1),
    Sketcher.Constraint("Equal", 1, 2),
    Sketcher.Constraint("Equal", 2, 3),
    Sketcher.Constraint("Symmetric", 0, 3, 2, 3, -1, 1),
    Sketcher.Constraint("Symmetric", 1, 3, 3, 3, -1, 1),
    Sketcher.Constraint("Symmetric", 0, 3, 1, 3, -2),
    Sketcher.Constraint("Diameter", 0, 10.0),
    Sketcher.Constraint("DistanceX", 0, 3, -1, 1, 30.0),
    Sketcher.Constraint("DistanceY", 1, 3, 2, 3, 45.0),
])
pad8 = doc.addObject("PartDesign::Pad", "Pad007")
body.addObject(pad8)
pad8.Profile = sketch12
pad8.Length = 3
pad8.Reversed = True

sketch13 = doc.addObject("Sketcher::SketchObject", "Sketch012")
body.addObject(sketch13)
sketch13.AttachmentSupport = (doc.XZ_Plane, [""])
sketch13.MapMode = "FlatFace"
sketch13.addGeometry([
    Part.Circle(V(33.5, -15, 0), V(0, 0, 1), 2.5),
    Part.Circle(V(33.5, 0, 0), V(0, 0, 1), 2.5),
    Part.Circle(V(-33.5, -14.9, 0), V(0, 0, 1), 2.5),
    Part.Circle(V(-33.5, 0.1, 0), V(0, 0, 1), 2.5),
], False)
sketch13.addConstraint([
    Sketcher.Constraint("Equal", 0, 1),
    Sketcher.Constraint("Equal", 1, 2),
    Sketcher.Constraint("Equal", 2, 3),
    Sketcher.Constraint("PointOnObject", 1, 3, -1),
    Sketcher.Constraint("Vertical", 0, 3, 1, 3),
    Sketcher.Constraint("Vertical", 2, 3, 3, 3),
    Sketcher.Constraint("Diameter", 0, 5.0),
    Sketcher.Constraint("DistanceY", 0, 3, -1, 1, 15.0),
    Sketcher.Constraint("DistanceX", 2, 3, 0, 3, 67.0),
    Sketcher.Constraint("DistanceY", 2, 3, 3, 3, 15.0),
    Sketcher.Constraint("DistanceX", -1, 1, 0, 3, 33.5),
    Sketcher.Constraint("DistanceY", 2, 3, -1, 1, 14.937012),
])
pocket5 = doc.addObject("PartDesign::Pocket", "Pocket004")
body.addObject(pocket5)
pocket5.Profile = sketch13
pocket5.Length = 10

doc.recompute()
